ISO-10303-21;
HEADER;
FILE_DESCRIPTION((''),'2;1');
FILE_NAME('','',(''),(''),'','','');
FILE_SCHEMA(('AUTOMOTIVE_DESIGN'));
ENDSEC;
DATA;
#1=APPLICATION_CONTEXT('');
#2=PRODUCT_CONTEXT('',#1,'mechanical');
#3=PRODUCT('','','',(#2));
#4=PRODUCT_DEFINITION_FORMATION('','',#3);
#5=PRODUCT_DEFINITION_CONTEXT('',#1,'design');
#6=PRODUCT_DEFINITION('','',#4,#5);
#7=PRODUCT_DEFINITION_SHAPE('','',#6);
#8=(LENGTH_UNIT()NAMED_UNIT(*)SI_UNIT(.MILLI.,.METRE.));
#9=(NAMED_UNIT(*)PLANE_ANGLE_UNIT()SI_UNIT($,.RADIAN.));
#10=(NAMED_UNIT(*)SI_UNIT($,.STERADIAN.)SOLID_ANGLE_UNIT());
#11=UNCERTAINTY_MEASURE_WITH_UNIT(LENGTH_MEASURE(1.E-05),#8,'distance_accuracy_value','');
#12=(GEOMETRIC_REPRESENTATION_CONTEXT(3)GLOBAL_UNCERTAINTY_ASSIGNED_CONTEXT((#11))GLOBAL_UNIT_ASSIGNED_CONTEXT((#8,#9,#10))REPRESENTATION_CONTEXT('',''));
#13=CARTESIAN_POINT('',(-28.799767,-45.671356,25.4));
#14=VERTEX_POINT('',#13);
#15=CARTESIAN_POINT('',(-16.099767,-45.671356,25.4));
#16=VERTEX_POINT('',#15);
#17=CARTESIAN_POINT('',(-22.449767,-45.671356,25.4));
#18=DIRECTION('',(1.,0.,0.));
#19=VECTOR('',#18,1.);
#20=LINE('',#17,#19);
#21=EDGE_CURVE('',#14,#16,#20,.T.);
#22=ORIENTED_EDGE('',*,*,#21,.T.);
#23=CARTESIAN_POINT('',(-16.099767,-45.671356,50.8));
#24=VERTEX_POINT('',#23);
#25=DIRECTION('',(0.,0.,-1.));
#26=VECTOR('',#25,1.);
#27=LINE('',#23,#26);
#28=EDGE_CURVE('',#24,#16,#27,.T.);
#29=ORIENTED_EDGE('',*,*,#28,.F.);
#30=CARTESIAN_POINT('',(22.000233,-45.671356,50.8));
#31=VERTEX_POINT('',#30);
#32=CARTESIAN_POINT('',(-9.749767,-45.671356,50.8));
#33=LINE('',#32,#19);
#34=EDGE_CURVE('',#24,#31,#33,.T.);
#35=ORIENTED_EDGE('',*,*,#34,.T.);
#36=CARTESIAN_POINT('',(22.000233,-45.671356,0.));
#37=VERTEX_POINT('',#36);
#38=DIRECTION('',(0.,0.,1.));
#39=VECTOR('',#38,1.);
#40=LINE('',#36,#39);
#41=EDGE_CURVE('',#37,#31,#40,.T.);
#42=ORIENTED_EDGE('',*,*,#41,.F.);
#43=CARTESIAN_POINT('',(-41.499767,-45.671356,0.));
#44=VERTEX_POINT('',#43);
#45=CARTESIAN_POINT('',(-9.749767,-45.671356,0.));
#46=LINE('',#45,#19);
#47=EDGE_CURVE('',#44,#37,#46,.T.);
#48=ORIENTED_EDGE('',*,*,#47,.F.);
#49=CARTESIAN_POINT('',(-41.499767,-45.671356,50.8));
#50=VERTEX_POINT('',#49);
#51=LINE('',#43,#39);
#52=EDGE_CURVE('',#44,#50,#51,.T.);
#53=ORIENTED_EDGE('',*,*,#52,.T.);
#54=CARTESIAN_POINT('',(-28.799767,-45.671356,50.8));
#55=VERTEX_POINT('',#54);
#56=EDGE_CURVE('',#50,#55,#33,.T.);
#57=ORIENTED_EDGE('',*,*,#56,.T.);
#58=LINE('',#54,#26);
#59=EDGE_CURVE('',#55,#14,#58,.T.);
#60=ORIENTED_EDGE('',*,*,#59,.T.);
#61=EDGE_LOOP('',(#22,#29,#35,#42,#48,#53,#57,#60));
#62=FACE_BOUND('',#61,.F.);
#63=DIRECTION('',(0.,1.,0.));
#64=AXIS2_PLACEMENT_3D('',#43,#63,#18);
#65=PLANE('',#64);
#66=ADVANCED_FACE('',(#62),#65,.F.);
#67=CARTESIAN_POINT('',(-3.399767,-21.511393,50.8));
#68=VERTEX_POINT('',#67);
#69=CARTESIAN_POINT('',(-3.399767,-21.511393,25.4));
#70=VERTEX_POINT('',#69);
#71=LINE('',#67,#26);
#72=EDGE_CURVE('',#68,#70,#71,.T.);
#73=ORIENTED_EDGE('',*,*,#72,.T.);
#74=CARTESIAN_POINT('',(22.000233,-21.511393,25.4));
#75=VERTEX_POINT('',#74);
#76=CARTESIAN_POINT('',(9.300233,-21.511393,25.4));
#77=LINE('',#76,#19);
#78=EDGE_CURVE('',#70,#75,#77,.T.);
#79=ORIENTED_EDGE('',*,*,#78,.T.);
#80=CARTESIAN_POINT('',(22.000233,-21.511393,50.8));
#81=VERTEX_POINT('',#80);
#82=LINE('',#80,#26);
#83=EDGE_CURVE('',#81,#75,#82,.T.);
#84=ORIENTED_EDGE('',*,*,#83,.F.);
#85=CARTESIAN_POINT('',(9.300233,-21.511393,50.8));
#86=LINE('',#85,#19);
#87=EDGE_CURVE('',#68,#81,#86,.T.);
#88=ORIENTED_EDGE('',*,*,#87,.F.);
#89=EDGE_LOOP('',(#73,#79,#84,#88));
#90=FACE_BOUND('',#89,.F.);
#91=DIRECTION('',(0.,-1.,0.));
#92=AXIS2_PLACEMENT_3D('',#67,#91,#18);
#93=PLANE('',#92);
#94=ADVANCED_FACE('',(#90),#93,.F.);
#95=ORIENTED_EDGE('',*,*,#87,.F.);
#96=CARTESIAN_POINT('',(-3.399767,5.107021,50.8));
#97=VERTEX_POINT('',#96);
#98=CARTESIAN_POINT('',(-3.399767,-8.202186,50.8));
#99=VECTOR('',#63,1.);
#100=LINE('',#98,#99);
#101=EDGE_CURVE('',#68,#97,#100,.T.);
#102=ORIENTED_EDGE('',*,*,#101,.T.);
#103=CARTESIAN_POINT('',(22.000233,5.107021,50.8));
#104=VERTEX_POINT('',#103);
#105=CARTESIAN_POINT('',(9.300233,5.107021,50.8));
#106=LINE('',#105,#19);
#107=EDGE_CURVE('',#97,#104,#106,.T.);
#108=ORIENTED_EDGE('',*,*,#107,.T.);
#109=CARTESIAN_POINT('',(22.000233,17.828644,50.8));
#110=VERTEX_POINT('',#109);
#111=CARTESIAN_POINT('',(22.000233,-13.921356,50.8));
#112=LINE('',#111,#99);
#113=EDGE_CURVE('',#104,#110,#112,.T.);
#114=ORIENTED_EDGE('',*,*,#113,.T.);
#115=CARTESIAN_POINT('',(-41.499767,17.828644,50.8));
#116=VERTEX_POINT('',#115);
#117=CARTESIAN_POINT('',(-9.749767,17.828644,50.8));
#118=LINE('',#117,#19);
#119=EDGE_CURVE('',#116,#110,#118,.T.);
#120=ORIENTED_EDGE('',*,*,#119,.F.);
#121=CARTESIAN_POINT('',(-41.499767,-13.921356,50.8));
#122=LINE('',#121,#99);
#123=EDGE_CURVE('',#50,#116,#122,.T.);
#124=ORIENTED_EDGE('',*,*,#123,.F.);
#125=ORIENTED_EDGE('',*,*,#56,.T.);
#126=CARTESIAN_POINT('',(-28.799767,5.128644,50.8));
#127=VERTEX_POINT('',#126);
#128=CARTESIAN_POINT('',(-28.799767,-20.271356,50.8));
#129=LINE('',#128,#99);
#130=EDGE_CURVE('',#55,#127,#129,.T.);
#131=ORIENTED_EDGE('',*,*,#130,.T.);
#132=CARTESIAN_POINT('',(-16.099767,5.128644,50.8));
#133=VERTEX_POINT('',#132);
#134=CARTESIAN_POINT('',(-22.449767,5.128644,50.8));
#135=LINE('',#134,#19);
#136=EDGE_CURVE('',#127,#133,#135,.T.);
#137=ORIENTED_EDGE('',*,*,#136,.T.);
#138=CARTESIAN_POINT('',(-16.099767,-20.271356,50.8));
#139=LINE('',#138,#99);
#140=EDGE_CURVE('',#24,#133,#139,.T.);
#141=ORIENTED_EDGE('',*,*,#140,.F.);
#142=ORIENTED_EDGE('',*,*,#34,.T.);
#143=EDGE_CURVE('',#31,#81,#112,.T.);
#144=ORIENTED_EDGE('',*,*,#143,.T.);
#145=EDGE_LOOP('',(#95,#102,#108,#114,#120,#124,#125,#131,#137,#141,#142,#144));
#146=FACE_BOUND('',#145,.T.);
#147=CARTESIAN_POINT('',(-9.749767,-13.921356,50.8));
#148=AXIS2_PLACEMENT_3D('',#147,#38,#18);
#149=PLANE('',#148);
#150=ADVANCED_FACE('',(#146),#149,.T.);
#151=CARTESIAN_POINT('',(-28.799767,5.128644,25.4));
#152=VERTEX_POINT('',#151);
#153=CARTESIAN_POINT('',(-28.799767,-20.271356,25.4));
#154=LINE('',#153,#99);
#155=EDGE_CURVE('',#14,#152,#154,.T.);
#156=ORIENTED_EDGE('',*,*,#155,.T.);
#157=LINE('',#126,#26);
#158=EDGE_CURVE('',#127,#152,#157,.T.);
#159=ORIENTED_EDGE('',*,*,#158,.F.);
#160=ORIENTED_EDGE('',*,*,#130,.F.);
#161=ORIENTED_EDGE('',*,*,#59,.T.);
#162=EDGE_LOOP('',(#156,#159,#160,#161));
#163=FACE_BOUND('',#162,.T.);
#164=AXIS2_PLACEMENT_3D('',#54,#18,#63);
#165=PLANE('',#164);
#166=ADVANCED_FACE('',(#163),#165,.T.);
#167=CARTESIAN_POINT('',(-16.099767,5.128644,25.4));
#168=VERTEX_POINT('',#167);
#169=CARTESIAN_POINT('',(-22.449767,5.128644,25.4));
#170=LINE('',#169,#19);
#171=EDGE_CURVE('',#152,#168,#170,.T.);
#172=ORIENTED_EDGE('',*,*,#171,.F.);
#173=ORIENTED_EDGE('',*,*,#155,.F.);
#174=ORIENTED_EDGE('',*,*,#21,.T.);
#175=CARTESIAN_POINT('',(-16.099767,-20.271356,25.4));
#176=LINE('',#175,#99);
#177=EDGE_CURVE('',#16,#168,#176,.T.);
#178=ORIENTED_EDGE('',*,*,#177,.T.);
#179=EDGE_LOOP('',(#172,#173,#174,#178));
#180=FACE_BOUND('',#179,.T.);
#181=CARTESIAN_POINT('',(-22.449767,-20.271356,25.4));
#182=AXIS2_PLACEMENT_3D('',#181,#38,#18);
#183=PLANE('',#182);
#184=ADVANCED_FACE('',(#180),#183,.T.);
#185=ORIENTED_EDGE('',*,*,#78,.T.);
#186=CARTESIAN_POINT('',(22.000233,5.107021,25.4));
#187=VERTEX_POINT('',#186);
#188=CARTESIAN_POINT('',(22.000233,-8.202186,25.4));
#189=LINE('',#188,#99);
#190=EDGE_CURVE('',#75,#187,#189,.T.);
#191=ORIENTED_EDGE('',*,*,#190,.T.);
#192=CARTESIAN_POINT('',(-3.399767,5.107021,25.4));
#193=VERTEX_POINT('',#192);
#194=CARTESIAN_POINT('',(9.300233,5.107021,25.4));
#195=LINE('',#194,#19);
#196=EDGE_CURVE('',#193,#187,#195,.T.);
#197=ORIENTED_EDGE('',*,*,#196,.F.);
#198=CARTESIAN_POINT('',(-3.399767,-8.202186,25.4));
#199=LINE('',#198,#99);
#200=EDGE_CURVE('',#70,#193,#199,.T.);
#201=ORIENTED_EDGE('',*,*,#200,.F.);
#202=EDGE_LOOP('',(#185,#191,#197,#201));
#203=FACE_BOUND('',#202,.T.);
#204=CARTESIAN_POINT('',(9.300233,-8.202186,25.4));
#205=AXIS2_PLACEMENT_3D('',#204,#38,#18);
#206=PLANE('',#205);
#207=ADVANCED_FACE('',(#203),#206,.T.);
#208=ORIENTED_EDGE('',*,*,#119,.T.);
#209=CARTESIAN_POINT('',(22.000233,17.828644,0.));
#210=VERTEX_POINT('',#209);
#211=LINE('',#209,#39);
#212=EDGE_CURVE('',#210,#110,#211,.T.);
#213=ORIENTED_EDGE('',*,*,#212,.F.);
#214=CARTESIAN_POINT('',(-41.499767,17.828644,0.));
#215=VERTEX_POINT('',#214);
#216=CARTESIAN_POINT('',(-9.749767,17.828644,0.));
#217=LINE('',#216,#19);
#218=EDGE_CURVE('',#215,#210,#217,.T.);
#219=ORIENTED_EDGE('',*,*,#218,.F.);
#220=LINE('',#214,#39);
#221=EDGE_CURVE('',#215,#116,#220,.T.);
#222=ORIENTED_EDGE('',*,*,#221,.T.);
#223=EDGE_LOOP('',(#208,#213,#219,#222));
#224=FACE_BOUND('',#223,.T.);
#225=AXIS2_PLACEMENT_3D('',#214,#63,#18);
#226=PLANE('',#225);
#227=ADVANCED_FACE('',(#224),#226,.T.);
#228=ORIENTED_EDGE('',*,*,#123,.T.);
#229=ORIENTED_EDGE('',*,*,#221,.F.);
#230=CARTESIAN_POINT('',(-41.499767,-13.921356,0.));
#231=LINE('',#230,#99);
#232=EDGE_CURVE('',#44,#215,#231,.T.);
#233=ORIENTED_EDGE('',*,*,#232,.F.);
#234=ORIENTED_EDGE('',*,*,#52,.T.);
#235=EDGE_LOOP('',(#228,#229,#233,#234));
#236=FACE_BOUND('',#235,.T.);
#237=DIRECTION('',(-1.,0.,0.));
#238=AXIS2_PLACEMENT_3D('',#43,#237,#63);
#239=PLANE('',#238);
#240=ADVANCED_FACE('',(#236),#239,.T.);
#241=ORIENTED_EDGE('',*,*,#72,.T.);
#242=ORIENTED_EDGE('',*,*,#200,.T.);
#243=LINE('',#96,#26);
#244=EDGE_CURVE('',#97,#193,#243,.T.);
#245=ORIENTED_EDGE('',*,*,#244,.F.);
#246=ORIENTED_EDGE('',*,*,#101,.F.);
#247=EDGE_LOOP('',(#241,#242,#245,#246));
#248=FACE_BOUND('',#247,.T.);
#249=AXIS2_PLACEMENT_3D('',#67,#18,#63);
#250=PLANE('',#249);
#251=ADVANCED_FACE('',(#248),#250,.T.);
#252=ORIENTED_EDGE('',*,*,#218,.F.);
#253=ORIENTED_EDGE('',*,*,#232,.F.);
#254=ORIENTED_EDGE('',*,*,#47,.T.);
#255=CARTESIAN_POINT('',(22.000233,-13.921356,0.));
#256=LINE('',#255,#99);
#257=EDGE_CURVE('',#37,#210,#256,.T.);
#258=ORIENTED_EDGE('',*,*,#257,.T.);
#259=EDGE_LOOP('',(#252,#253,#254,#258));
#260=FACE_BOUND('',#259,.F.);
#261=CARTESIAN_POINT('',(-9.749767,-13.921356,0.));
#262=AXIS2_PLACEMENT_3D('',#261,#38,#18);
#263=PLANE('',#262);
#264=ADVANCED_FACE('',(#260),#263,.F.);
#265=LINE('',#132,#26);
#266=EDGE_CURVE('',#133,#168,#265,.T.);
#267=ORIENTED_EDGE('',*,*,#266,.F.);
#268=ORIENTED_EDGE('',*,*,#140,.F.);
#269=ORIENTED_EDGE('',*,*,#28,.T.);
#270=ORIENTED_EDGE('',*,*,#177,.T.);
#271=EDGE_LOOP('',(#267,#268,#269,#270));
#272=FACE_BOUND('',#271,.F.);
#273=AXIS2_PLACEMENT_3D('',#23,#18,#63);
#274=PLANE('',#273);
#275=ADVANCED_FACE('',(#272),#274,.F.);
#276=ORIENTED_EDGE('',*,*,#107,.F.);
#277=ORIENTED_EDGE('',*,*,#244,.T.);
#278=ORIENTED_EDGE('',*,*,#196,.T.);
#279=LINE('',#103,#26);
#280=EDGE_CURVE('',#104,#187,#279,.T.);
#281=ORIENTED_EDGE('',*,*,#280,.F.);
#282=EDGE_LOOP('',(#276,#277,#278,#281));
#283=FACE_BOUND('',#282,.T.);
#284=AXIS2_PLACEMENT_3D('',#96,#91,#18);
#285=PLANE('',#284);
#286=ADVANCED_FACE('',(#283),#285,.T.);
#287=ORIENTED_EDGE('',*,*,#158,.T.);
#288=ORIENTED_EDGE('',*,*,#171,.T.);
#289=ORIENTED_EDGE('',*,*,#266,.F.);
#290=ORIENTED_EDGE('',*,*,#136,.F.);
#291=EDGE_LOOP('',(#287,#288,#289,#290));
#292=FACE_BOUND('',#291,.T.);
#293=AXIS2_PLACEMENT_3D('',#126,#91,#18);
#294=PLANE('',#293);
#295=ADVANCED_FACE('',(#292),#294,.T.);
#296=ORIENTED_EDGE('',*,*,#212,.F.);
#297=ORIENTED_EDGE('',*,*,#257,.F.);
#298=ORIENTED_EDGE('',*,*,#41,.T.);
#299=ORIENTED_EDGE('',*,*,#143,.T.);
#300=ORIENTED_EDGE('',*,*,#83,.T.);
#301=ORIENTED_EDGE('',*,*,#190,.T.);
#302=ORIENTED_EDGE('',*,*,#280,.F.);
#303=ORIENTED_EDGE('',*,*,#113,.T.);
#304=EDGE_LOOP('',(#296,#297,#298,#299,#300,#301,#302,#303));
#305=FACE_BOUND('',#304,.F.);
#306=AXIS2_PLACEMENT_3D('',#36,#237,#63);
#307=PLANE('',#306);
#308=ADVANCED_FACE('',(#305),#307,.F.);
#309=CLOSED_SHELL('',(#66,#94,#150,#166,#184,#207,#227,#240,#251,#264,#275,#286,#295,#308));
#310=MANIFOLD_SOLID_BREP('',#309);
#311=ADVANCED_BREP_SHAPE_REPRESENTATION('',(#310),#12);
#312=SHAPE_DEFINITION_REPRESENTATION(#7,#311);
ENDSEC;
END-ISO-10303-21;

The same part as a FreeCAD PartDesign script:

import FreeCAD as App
import Part
import Sketcher

V = App.Vector
Q = App.Units.Quantity


def add_polygon(sketch, points):
    """Adds a closed chain of lines whose ends are joined by coincident constraints."""
    first, n = sketch.GeometryCount, len(points)
    for a, b in zip(points, points[1:] + points[:1]):
        sketch.addGeometry(Part.LineSegment(App.Vector(*a, 0), App.Vector(*b, 0)), False)
    for i in range(n):
        sketch.addConstraint(Sketcher.Constraint("Coincident", first + i, 2, first + (i + 1) % n, 1))

doc = App.newDocument("Part")
params = doc.addObject("Spreadsheet::Sheet", "Params")
for row, (alias, value) in enumerate([
    ("sketch1_width", "2.5 in"),
    ("pad1_length", "2 in"),
    ("sketch2_width", "1 in"),
    ("sketch2_height", "2 in"),
    ("sketch2_width2", "0.5 in"),
    ("pocket1_length", "1 in"),
], start=1):
    params.set(f"A{row}", alias)
    params.set(f"B{row}", "=" + value)
    params.setAlias(f"B{row}", alias)

body = doc.addObject("PartDesign::Body", "Body")

sketch1 = body.newObject("Sketcher::SketchObject", "Sketch")
sketch1.AttachmentSupport = (doc.getObject("XY_Plane"), [""])
sketch1.MapMode = "FlatFace"
add_polygon(sketch1, [(-41, 18), (-41, -46), (22, -46), (22, 18)])
sketch1.addConstraint([
    Sketcher.Constraint("Vertical", 0),
    Sketcher.Constraint("Horizontal", 1),
    Sketcher.Constraint("Vertical", 2),
    Sketcher.Constraint("Horizontal", 3),
    Sketcher.Constraint("Equal", 3, 0),
    Sketcher.Constraint("DistanceX", 1, 1, 1, 2, Q("2.5 in")),
    Sketcher.Constraint("DistanceX", 0, 2, -1, 1, 41.499767),
    Sketcher.Constraint("DistanceY", 0, 2, -1, 1, 45.671356),
])
sketch1.setExpression("Constraints[9]", "Params.sketch1_width")
pad1 = body.newObject("PartDesign::Pad", "Pad")
pad1.Profile = sketch1
pad1.setExpression("Length", "Params.pad1_length")

sketch2 = body.newObject("Sketcher::SketchObject", "Sketch001")
sketch2.AttachmentSupport = (doc.getObject("XY_Plane"), [""])
sketch2.MapMode = "FlatFace"
sketch2.AttachmentOffset = App.Placement(V(0, 0, 2 * 25.4), App.Rotation())
add_polygon(sketch2, [(-3, 5), (-3, -22), (22, -22), (22, 5)])
add_polygon(sketch2, [(-29, 5), (-29, -46), (-16, -46), (-16, 5)])
sketch2.addConstraint([
    Sketcher.Constraint("Vertical", 0),
    Sketcher.Constraint("Horizontal", 1),
    Sketcher.Constraint("Vertical", 2),
    Sketcher.Constraint("Horizontal", 3),
    Sketcher.Constraint("Vertical", 4),
    Sketcher.Constraint("Horizontal", 5),
    Sketcher.Constraint("Vertical", 6),
    Sketcher.Constraint("Horizontal", 7),
    Sketcher.Constraint("DistanceX", 1, 1, 1, 2, Q("1 in")),
    Sketcher.Constraint("DistanceY", 4, 2, 4, 1, Q("2 in")),
    Sketcher.Constraint("DistanceX", 5, 1, 5, 2, Q("0.5 in")),
    Sketcher.Constraint("DistanceX", 4, 2, 0, 2, Q("1 in")),
    Sketcher.Constraint("DistanceY", 0, 2, 0, 1, 26.618414),
    Sketcher.Constraint("DistanceY", -1, 1, 2, 2, 5.107021),
    Sketcher.Constraint("DistanceX", 0, 2, -1, 1, 3.399767),
    Sketcher.Constraint("DistanceY", 4, 2, -1, 1, 45.671356),
])
sketch2.setExpression("Constraints[16]", "Params.sketch2_width")
sketch2.setExpression("Constraints[17]", "Params.sketch2_height")
sketch2.setExpression("Constraints[18]", "Params.sketch2_width2")
pocket1 = body.newObject("PartDesign::Pocket", "Pocket")
pocket1.Profile = sketch2
pocket1.setExpression("Length", "Params.pocket1_length")

doc.recompute()
